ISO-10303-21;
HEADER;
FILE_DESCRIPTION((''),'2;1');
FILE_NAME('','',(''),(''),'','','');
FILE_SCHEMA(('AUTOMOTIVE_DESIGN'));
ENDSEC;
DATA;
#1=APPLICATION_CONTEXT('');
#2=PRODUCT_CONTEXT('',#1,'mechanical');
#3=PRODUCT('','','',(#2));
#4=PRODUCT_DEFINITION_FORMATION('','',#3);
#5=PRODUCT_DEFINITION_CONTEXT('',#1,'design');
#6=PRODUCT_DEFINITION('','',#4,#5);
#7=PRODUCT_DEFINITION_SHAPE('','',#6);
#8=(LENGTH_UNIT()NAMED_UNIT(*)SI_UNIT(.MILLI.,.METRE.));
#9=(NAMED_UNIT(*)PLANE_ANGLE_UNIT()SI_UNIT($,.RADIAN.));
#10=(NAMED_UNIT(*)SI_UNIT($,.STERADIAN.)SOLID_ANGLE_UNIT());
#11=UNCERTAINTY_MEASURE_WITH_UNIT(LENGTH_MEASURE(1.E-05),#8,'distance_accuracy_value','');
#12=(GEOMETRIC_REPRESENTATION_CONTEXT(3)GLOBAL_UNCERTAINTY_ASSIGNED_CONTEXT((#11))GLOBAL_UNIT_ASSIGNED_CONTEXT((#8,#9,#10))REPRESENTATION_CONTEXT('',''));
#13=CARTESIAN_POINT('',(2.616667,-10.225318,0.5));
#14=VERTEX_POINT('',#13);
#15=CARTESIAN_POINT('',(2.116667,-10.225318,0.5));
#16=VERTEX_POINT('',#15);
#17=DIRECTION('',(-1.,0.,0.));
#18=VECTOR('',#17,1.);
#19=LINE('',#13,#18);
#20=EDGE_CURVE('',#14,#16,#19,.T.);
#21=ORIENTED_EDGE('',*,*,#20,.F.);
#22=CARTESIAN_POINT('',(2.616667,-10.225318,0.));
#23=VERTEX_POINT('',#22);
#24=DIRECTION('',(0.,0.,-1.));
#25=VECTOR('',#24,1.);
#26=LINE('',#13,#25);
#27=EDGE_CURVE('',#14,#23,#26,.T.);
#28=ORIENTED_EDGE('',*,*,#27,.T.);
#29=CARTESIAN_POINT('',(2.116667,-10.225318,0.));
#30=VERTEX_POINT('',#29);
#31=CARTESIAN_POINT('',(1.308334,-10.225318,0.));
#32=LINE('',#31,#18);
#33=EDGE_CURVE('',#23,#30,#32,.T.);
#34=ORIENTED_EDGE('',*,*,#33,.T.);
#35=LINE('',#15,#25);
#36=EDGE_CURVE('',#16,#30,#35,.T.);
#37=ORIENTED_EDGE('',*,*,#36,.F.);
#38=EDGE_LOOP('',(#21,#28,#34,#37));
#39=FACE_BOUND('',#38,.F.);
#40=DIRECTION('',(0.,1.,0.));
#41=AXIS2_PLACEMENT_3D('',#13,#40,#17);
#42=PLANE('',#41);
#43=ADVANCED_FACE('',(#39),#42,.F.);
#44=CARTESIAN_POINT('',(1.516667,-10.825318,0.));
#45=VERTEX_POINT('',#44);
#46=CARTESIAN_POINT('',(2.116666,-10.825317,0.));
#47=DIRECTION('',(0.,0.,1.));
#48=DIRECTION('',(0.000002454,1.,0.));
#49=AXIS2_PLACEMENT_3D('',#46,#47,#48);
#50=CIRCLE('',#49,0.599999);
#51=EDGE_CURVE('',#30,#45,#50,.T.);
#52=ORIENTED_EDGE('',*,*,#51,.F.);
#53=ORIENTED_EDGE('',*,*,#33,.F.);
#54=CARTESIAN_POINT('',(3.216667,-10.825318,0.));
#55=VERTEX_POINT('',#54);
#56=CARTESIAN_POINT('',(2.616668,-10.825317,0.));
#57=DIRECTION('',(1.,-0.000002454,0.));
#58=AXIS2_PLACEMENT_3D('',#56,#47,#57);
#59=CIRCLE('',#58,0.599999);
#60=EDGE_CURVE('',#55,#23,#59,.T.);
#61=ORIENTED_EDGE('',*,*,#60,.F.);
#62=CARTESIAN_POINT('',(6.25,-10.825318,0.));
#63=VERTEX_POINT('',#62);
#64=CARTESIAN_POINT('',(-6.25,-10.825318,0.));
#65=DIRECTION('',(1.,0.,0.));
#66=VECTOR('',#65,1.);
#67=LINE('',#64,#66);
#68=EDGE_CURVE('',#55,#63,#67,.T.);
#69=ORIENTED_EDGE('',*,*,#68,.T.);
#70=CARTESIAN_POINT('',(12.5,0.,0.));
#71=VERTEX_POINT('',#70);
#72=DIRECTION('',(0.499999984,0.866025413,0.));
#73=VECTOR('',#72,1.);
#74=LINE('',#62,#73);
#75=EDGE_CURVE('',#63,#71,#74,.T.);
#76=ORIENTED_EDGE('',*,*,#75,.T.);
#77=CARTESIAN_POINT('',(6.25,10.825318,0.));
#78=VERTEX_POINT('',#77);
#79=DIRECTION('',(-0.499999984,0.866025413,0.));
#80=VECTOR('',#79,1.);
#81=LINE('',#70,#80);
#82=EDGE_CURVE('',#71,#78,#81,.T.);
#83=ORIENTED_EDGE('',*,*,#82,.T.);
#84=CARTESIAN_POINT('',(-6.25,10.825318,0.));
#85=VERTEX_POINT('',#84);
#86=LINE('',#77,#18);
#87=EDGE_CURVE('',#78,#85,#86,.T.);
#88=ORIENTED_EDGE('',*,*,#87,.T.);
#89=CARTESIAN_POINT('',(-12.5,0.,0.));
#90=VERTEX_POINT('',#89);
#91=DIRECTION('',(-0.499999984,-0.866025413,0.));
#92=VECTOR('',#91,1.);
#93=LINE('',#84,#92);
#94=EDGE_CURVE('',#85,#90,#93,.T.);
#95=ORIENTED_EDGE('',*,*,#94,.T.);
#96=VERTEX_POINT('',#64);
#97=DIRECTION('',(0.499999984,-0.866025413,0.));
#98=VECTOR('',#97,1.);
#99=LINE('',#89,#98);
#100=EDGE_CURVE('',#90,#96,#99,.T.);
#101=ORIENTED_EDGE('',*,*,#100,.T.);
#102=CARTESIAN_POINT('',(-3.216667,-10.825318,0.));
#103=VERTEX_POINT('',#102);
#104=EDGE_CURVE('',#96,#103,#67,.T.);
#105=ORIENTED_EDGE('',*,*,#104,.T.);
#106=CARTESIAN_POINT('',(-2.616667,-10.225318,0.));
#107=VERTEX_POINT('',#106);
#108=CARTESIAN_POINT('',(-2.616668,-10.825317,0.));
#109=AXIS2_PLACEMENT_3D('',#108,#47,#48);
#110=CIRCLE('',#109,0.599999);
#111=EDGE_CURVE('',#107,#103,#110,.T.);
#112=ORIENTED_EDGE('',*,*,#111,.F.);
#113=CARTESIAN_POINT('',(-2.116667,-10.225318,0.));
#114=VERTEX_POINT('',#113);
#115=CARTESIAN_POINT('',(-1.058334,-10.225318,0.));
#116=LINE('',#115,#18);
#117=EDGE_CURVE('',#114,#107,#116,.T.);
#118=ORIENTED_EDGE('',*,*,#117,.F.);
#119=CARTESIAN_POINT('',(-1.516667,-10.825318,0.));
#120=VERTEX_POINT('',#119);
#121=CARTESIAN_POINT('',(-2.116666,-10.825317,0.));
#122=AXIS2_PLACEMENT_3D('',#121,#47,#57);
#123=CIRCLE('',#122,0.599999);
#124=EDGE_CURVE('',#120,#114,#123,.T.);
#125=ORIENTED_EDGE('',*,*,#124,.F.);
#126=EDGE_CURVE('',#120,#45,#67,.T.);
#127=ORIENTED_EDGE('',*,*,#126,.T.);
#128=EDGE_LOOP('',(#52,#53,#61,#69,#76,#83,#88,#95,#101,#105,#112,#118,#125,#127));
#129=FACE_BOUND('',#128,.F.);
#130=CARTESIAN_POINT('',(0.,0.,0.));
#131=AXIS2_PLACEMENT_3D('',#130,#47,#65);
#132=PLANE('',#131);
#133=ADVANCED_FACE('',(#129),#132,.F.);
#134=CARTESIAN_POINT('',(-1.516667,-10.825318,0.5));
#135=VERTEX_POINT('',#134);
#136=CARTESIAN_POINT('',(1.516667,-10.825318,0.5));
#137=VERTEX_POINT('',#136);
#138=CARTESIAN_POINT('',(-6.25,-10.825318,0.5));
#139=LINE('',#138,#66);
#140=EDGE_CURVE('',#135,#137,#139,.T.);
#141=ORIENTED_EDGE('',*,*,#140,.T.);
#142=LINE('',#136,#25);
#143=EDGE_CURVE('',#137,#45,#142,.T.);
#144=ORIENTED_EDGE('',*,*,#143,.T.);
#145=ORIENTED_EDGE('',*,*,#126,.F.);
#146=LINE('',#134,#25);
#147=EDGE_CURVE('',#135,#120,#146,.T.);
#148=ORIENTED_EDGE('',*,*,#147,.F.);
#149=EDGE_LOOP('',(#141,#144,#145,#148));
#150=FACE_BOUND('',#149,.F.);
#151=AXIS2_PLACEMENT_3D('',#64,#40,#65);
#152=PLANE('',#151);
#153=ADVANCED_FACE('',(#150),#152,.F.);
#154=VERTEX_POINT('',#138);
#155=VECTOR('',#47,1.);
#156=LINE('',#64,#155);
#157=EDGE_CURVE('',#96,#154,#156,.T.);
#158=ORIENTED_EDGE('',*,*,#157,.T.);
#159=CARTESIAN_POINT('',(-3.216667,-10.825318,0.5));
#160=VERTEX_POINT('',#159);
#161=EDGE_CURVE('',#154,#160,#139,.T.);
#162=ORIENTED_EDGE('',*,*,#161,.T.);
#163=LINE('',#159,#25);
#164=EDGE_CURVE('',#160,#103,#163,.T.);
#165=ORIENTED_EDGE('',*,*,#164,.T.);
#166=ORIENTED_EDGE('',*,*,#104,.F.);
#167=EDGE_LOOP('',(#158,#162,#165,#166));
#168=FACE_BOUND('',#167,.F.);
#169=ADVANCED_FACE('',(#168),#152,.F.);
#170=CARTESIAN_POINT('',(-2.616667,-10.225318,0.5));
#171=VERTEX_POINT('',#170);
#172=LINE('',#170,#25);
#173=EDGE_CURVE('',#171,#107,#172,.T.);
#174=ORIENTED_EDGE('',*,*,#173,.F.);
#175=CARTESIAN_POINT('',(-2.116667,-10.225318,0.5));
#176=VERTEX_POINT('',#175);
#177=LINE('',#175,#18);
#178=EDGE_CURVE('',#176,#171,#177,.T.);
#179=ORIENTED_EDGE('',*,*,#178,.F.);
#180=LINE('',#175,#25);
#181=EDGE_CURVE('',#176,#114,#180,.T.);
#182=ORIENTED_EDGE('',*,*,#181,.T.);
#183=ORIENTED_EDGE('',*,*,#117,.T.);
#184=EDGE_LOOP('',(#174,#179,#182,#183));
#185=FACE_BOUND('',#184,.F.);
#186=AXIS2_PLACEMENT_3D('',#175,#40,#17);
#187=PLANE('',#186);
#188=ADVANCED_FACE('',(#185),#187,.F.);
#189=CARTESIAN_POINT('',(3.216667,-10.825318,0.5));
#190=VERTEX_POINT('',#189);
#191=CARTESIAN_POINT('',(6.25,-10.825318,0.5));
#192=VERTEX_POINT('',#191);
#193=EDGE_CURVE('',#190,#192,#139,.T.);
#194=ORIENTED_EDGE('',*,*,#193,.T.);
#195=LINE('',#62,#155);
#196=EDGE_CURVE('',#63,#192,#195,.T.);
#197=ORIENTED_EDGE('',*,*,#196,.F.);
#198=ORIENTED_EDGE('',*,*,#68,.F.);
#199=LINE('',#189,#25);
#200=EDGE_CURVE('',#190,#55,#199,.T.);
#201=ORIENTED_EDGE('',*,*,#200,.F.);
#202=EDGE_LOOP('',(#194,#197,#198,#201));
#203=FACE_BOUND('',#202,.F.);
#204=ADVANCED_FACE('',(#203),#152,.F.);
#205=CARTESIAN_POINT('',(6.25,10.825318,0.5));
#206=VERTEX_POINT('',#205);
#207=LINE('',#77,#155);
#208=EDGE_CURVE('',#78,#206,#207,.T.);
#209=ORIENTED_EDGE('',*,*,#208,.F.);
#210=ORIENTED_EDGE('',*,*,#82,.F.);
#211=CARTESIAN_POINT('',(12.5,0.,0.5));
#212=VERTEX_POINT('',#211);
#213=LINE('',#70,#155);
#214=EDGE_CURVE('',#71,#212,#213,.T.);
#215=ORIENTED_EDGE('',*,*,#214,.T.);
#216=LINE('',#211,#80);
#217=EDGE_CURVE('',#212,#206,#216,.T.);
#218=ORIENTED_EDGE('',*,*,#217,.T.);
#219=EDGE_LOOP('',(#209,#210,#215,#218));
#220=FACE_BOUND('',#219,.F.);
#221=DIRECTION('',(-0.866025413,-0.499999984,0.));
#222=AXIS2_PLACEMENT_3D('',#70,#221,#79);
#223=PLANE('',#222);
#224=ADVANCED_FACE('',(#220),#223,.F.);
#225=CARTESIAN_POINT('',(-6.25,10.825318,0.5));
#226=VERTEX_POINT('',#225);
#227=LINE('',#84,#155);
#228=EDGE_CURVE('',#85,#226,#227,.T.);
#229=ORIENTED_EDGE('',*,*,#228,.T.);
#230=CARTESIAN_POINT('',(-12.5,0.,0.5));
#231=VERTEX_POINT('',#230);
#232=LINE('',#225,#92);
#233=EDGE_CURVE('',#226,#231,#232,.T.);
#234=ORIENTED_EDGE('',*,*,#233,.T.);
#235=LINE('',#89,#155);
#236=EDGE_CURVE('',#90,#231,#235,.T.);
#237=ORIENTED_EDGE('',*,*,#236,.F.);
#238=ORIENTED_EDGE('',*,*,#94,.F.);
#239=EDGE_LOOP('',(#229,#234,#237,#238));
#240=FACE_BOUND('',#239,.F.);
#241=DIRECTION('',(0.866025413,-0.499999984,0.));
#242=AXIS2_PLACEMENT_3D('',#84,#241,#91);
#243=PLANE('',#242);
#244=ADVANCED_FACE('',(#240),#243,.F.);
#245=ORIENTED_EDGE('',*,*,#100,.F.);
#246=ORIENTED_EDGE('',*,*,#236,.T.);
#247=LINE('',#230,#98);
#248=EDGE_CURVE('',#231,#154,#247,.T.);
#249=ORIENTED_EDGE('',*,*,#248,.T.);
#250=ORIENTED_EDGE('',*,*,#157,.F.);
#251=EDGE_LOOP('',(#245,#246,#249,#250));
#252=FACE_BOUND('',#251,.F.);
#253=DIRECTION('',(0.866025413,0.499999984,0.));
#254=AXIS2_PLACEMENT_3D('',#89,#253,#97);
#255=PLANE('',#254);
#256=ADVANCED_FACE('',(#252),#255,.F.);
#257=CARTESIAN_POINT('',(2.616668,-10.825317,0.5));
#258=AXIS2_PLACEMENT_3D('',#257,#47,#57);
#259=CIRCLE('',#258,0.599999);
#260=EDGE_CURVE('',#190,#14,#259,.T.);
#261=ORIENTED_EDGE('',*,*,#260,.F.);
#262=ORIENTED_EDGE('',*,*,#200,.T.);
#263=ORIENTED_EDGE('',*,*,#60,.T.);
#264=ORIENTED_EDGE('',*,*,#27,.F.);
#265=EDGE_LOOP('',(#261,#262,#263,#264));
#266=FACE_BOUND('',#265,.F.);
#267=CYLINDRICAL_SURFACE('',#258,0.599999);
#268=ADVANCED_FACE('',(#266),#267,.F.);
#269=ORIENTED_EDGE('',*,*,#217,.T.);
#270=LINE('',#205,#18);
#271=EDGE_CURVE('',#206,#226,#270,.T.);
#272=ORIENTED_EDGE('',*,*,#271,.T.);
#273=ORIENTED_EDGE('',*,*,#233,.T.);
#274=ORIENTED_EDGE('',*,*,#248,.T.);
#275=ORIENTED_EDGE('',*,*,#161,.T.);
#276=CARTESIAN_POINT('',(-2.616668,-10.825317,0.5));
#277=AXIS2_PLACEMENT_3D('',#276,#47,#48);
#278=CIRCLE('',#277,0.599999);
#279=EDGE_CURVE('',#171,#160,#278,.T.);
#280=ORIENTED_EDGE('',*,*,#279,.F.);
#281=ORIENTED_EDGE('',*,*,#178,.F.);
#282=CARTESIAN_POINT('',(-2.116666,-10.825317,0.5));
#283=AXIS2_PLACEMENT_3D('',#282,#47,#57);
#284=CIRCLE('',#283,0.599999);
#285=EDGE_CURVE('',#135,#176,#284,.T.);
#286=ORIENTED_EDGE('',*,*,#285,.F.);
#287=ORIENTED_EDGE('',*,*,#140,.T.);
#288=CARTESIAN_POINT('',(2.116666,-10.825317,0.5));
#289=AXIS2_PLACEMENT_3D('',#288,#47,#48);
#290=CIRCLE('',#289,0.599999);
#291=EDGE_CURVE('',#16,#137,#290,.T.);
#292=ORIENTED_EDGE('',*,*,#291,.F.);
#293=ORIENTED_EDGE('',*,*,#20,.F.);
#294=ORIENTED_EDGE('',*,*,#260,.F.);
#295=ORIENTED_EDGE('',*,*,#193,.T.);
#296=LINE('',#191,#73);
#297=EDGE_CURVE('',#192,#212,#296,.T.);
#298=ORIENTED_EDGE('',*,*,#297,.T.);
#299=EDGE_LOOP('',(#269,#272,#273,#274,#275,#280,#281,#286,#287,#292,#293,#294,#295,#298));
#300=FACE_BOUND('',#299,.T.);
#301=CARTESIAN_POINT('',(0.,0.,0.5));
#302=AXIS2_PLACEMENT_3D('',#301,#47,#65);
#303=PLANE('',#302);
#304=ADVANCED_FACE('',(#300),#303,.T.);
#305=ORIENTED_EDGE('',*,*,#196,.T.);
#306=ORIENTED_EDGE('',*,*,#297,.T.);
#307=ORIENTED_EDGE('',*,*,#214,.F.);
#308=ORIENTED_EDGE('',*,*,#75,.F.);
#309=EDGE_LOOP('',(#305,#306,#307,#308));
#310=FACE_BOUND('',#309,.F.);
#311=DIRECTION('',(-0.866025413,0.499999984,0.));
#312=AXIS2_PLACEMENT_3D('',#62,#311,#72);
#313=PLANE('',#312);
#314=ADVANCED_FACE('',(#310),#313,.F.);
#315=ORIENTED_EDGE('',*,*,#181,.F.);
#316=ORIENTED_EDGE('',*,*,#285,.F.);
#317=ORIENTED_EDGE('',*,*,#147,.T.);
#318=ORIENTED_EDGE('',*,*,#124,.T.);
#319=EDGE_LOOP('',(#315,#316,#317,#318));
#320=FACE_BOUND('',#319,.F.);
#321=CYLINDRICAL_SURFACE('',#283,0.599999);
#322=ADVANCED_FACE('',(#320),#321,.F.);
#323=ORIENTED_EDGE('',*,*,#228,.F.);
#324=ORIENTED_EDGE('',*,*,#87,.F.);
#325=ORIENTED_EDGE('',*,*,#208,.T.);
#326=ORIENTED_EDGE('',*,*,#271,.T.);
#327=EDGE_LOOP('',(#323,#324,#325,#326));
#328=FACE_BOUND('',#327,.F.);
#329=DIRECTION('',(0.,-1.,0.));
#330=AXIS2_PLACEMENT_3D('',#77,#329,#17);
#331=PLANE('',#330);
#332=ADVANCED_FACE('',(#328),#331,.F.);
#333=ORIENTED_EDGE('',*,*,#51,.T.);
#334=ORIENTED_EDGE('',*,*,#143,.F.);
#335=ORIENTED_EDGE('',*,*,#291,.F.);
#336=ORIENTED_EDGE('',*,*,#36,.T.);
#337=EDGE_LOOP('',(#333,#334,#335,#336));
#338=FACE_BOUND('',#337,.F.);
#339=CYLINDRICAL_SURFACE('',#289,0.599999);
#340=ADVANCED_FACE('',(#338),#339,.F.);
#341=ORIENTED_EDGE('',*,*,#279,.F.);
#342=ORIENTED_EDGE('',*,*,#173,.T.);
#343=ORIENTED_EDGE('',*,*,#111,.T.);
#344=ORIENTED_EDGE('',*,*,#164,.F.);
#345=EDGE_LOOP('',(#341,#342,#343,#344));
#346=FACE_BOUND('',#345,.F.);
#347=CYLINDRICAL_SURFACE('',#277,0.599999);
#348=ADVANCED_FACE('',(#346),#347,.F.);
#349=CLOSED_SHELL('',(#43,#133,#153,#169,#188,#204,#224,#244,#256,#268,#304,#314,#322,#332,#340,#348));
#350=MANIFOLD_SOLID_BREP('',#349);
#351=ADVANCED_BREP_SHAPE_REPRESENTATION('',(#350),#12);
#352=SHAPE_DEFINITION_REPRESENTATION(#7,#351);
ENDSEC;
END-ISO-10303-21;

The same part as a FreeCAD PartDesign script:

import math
import FreeCAD as App
import Part
import Sketcher

V = App.Vector
Q = App.Units.Quantity


def add_polygon(sketch, points):
    """Adds a closed chain of lines whose ends are joined by coincident constraints."""
    first, n = sketch.GeometryCount, len(points)
    for a, b in zip(points, points[1:] + points[:1]):
        sketch.addGeometry(Part.LineSegment(App.Vector(*a, 0), App.Vector(*b, 0)), False)
    for i in range(n):
        sketch.addConstraint(Sketcher.Constraint("Coincident", first + i, 2, first + (i + 1) % n, 1))

doc = App.newDocument("Part")
body = doc.addObject("PartDesign::Body", "Body")

# Sketch on XY plane
sketch1 = body.newObject("Sketcher::SketchObject", "Sketch")
sketch1.AttachmentSupport = (doc.getObject("XY_Plane"), [""])
sketch1.MapMode = "FlatFace"
add_polygon(sketch1, [(6, -11), (12, 0), (6, 11), (-6, 11), (-12, 0), (-6, -11)])  # lines 0-5
sketch1.addConstraint(Sketcher.Constraint("Horizontal", 2))
sketch1.addConstraint(Sketcher.Constraint("Horizontal", 5))
sketch1.addConstraint(Sketcher.Constraint("Symmetric", 0, 2, 3, 2, -1, 1))
sketch1.addConstraint(Sketcher.Constraint("Symmetric", 1, 2, 4, 2, -1, 1))
sketch1.addConstraint(Sketcher.Constraint("PointOnObject", 0, 2, -1))
sketch1.addConstraint(Sketcher.Constraint("Parallel", 0, 3))
sketch1.addConstraint(Sketcher.Constraint("Vertical", 2, 2, 4, 2))
sketch1.addConstraint(Sketcher.Constraint("Angle", 0, Q("60.000001 deg")))
sketch1.addConstraint(Sketcher.Constraint("DistanceX", 2, 2, 2, 1, Q("12.5 mm")))
sketch1.addConstraint(Sketcher.Constraint("DistanceX", 3, 2, 0, 2, Q("25 mm")))
pad1 = body.newObject("PartDesign::Pad", "Pad")
pad1.Profile = sketch1
pad1.Length = 0.5

# Sketch on XY plane
sketch2 = body.newObject("Sketcher::SketchObject", "Sketch001")
sketch2.AttachmentSupport = (doc.getObject("XY_Plane"), [""])
sketch2.MapMode = "FlatFace"
sketch2.AttachmentOffset = App.Placement(V(0, 0, 0.5), App.Rotation())
sketch2.addGeometry(Part.ArcOfCircle(Part.Circle(V(2.6, -10.8, 0), V(0, 0, 1), 0.6), math.radians(0), math.radians(90)), False)
sketch2.addGeometry(Part.LineSegment(V(2.6, -10.2, 0), V(2.1, -10.2, 0)), False)
sketch2.addGeometry(Part.ArcOfCircle(Part.Circle(V(2.1, -10.8, 0), V(0, 0, 1), 0.6), math.radians(90), math.radians(180)), False)
sketch2.addGeometry(Part.LineSegment(V(1.5, -10.8, 0), V(3.2, -10.8, 0)), False)
sketch2.addGeometry(Part.LineSegment(V(-3.2, -10.8, 0), V(-1.5, -10.8, 0)), False)
sketch2.addGeometry(Part.ArcOfCircle(Part.Circle(V(-2.1, -10.8, 0), V(0, 0, 1), 0.6), math.radians(0), math.radians(90)), False)
sketch2.addGeometry(Part.LineSegment(V(-2.1, -10.2, 0), V(-2.6, -10.2, 0)), False)
sketch2.addGeometry(Part.ArcOfCircle(Part.Circle(V(-2.6, -10.8, 0), V(0, 0, 1), 0.6), math.radians(90), math.radians(180)), False)
sketch2.addConstraint(Sketcher.Constraint("Coincident", 0, 2, 1, 1))
sketch2.addConstraint(Sketcher.Constraint("Coincident", 1, 2, 2, 1))
sketch2.addConstraint(Sketcher.Constraint("Coincident", 2, 2, 3, 1))
sketch2.addConstraint(Sketcher.Constraint("Coincident", 3, 2, 0, 1))
sketch2.addConstraint(Sketcher.Constraint("Coincident", 4, 2, 5, 1))
sketch2.addConstraint(Sketcher.Constraint("Coincident", 5, 2, 6, 1))
sketch2.addConstraint(Sketcher.Constraint("Coincident", 6, 2, 7, 1))
sketch2.addConstraint(Sketcher.Constraint("Coincident", 7, 2, 4, 1))
sketch2.addConstraint(Sketcher.Constraint("Horizontal", 1))
sketch2.addConstraint(Sketcher.Constraint("Horizontal", 3))
sketch2.addConstraint(Sketcher.Constraint("Horizontal", 4))
sketch2.addConstraint(Sketcher.Constraint("Horizontal", 6))
sketch2.addConstraint(Sketcher.Constraint("Equal", 0, 2))
sketch2.addConstraint(Sketcher.Constraint("Equal", 2, 5))
sketch2.addConstraint(Sketcher.Constraint("Equal", 5, 7))
sketch2.addConstraint(Sketcher.Constraint("Symmetric", 2, 3, 5, 3, -2))
sketch2.addConstraint(Sketcher.Constraint("Symmetric", 3, 2, 7, 2, -2))
sketch2.addConstraint(Sketcher.Constraint("Horizontal", 7, 3, 2, 2))
sketch2.addConstraint(Sketcher.Constraint("Vertical", 2, 3, 1, 2))
sketch2.addConstraint(Sketcher.Constraint("Vertical", 7, 3, 6, 2))
sketch2.addConstraint(Sketcher.Constraint("Equal", 1, 6))
sketch2.addConstraint(Sketcher.Constraint("Radius", 0, Q("0.599999 mm")))
sketch2.addConstraint(Sketcher.Constraint("DistanceX", 1, 2, 1, 1, Q("0.5 mm")))
sketch2.addConstraint(Sketcher.Constraint("DistanceX", 3, 1, 3, 2, Q("1.7 mm")))
sketch2.addConstraint(Sketcher.Constraint("DistanceX", -1, 1, 0, 3, Q("2.616668 mm")))
sketch2.addConstraint(Sketcher.Constraint("DistanceY", 0, 2, -1, 1, Q("10.225318 mm")))
pocket1 = body.newObject("PartDesign::Pocket", "Pocket")
pocket1.Profile = sketch2
pocket1.Type = "ThroughAll"

doc.recompute()
